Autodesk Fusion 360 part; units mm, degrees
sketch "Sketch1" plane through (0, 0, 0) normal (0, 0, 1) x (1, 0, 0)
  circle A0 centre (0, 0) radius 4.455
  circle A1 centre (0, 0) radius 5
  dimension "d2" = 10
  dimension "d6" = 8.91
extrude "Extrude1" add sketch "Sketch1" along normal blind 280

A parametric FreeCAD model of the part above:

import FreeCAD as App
import Part
import Sketcher
Q = App.Units.Quantity

doc = App.newDocument("Part")
body = doc.addObject("PartDesign::Body", "Body")

sketch1 = body.newObject("Sketcher::SketchObject", "Sketch")
sketch1.AttachmentSupport = (doc.getObject("XY_Plane"), [""])
sketch1.MapMode = "FlatFace"
sketch1.addGeometry(Part.Circle(App.Vector(0, 0, 0), App.Vector(0, 0, 1), 5), False)
sketch1.addGeometry(Part.Circle(App.Vector(0, 0, 0), App.Vector(0, 0, 1), 4.5), False)
sketch1.addConstraint(Sketcher.Constraint("Coincident", 0, 3, -1, 1))
sketch1.addConstraint(Sketcher.Constraint("Coincident", 1, 3, -1, 1))
sketch1.addConstraint(Sketcher.Constraint("Diameter", 0, Q("10 mm")))
sketch1.addConstraint(Sketcher.Constraint("Diameter", 1, Q("8.91 mm")))
pad1 = body.newObject("PartDesign::Pad", "Pad")
pad1.Profile = sketch1
pad1.Length = 280

doc.recompute()
